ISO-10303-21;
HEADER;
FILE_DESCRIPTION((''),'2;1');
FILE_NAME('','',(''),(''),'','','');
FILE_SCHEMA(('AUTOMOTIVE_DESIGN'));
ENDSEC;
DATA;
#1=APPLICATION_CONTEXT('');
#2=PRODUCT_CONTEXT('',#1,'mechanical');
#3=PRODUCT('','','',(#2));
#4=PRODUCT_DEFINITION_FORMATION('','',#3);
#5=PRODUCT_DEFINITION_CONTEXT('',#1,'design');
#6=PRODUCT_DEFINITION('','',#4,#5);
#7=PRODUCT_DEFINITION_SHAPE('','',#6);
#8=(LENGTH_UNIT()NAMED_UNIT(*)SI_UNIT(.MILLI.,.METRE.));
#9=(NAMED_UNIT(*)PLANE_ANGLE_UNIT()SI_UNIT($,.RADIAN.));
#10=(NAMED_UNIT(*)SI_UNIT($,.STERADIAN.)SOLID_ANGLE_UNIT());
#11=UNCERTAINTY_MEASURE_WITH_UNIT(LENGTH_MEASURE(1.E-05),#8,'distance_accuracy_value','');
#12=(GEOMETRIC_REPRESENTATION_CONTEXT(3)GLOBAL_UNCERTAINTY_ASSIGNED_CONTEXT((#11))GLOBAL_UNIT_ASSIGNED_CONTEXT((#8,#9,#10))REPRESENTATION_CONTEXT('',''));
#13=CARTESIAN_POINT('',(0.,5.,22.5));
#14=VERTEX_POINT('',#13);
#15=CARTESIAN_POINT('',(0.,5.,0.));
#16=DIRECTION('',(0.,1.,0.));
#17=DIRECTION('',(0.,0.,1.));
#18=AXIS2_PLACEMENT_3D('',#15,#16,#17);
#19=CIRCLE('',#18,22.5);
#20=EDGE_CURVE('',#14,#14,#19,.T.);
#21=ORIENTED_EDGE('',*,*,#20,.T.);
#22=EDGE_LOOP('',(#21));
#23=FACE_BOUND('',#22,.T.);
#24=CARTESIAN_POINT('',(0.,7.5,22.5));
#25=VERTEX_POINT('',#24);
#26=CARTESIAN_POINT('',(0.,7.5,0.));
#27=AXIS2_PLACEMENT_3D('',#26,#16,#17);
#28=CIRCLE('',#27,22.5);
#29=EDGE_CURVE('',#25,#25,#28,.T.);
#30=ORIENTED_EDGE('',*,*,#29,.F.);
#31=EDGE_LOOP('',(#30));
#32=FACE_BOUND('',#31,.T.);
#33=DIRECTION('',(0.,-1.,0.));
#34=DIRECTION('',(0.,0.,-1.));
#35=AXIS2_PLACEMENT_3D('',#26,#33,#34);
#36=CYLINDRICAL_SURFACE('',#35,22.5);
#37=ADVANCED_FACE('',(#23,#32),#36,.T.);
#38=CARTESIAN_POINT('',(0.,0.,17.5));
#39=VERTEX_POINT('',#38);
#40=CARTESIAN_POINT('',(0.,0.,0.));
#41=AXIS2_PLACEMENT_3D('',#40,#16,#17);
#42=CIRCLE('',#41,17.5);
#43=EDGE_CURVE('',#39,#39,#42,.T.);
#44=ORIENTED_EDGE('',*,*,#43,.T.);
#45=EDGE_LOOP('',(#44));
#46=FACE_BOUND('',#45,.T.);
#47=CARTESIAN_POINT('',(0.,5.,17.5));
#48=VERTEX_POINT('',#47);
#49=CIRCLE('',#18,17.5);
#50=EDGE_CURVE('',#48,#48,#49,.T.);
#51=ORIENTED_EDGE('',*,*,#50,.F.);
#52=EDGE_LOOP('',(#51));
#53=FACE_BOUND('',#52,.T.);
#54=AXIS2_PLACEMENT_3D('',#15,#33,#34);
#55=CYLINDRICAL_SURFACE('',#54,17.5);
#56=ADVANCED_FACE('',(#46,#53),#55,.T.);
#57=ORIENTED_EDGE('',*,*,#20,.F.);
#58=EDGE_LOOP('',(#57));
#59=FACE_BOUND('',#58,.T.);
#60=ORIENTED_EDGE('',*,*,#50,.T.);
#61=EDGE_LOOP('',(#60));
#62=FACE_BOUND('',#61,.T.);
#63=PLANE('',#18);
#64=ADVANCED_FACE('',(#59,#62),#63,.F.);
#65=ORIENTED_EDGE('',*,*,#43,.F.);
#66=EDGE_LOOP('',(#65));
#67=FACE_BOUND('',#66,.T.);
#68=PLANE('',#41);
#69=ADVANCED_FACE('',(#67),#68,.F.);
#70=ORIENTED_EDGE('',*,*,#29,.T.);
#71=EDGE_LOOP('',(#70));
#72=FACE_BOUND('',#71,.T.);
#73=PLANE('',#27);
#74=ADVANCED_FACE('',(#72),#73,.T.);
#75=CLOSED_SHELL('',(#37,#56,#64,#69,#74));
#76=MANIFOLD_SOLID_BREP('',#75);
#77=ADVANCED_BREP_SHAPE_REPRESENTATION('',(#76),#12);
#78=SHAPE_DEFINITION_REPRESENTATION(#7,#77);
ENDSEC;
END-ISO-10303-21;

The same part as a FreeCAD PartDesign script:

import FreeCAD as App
import Part
import Sketcher

V = App.Vector

doc = App.newDocument("Part")
body = doc.addObject("PartDesign::Body", "Body")

sketch1 = body.newObject("Sketcher::SketchObject", "Sketch")
sketch1.AttachmentSupport = (doc.getObject("XZ_Plane"), [""])
sketch1.MapMode = "FlatFace"
sketch1.addGeometry(Part.Circle(V(0, 0, 0), V(0, 0, 1), 17.5), False)
sketch1.addConstraint(Sketcher.Constraint("Coincident", 0, 3, -1, 1))
sketch1.addConstraint(Sketcher.Constraint("Diameter", 0, 35.0))
pad1 = body.newObject("PartDesign::Pad", "Pad")
pad1.Profile = sketch1
pad1.Length = 5
pad1.Reversed = True

sketch2 = body.newObject("Sketcher::SketchObject", "Sketch001")
sketch2.AttachmentSupport = (doc.getObject("XZ_Plane"), [""])
sketch2.MapMode = "FlatFace"
sketch2.AttachmentOffset = App.Placement(V(0, 0, -5), App.Rotation())
sketch2.addGeometry(Part.Circle(V(0, 0, 0), V(0, 0, 1), 22.5), False)
sketch2.addConstraint(Sketcher.Constraint("Coincident", 0, 3, -1, 1))
sketch2.addConstraint(Sketcher.Constraint("Diameter", 0, 45.0))
pad2 = body.newObject("PartDesign::Pad", "Pad001")
pad2.Profile = sketch2
pad2.Length = 2.5
pad2.Reversed = True

doc.recompute()
